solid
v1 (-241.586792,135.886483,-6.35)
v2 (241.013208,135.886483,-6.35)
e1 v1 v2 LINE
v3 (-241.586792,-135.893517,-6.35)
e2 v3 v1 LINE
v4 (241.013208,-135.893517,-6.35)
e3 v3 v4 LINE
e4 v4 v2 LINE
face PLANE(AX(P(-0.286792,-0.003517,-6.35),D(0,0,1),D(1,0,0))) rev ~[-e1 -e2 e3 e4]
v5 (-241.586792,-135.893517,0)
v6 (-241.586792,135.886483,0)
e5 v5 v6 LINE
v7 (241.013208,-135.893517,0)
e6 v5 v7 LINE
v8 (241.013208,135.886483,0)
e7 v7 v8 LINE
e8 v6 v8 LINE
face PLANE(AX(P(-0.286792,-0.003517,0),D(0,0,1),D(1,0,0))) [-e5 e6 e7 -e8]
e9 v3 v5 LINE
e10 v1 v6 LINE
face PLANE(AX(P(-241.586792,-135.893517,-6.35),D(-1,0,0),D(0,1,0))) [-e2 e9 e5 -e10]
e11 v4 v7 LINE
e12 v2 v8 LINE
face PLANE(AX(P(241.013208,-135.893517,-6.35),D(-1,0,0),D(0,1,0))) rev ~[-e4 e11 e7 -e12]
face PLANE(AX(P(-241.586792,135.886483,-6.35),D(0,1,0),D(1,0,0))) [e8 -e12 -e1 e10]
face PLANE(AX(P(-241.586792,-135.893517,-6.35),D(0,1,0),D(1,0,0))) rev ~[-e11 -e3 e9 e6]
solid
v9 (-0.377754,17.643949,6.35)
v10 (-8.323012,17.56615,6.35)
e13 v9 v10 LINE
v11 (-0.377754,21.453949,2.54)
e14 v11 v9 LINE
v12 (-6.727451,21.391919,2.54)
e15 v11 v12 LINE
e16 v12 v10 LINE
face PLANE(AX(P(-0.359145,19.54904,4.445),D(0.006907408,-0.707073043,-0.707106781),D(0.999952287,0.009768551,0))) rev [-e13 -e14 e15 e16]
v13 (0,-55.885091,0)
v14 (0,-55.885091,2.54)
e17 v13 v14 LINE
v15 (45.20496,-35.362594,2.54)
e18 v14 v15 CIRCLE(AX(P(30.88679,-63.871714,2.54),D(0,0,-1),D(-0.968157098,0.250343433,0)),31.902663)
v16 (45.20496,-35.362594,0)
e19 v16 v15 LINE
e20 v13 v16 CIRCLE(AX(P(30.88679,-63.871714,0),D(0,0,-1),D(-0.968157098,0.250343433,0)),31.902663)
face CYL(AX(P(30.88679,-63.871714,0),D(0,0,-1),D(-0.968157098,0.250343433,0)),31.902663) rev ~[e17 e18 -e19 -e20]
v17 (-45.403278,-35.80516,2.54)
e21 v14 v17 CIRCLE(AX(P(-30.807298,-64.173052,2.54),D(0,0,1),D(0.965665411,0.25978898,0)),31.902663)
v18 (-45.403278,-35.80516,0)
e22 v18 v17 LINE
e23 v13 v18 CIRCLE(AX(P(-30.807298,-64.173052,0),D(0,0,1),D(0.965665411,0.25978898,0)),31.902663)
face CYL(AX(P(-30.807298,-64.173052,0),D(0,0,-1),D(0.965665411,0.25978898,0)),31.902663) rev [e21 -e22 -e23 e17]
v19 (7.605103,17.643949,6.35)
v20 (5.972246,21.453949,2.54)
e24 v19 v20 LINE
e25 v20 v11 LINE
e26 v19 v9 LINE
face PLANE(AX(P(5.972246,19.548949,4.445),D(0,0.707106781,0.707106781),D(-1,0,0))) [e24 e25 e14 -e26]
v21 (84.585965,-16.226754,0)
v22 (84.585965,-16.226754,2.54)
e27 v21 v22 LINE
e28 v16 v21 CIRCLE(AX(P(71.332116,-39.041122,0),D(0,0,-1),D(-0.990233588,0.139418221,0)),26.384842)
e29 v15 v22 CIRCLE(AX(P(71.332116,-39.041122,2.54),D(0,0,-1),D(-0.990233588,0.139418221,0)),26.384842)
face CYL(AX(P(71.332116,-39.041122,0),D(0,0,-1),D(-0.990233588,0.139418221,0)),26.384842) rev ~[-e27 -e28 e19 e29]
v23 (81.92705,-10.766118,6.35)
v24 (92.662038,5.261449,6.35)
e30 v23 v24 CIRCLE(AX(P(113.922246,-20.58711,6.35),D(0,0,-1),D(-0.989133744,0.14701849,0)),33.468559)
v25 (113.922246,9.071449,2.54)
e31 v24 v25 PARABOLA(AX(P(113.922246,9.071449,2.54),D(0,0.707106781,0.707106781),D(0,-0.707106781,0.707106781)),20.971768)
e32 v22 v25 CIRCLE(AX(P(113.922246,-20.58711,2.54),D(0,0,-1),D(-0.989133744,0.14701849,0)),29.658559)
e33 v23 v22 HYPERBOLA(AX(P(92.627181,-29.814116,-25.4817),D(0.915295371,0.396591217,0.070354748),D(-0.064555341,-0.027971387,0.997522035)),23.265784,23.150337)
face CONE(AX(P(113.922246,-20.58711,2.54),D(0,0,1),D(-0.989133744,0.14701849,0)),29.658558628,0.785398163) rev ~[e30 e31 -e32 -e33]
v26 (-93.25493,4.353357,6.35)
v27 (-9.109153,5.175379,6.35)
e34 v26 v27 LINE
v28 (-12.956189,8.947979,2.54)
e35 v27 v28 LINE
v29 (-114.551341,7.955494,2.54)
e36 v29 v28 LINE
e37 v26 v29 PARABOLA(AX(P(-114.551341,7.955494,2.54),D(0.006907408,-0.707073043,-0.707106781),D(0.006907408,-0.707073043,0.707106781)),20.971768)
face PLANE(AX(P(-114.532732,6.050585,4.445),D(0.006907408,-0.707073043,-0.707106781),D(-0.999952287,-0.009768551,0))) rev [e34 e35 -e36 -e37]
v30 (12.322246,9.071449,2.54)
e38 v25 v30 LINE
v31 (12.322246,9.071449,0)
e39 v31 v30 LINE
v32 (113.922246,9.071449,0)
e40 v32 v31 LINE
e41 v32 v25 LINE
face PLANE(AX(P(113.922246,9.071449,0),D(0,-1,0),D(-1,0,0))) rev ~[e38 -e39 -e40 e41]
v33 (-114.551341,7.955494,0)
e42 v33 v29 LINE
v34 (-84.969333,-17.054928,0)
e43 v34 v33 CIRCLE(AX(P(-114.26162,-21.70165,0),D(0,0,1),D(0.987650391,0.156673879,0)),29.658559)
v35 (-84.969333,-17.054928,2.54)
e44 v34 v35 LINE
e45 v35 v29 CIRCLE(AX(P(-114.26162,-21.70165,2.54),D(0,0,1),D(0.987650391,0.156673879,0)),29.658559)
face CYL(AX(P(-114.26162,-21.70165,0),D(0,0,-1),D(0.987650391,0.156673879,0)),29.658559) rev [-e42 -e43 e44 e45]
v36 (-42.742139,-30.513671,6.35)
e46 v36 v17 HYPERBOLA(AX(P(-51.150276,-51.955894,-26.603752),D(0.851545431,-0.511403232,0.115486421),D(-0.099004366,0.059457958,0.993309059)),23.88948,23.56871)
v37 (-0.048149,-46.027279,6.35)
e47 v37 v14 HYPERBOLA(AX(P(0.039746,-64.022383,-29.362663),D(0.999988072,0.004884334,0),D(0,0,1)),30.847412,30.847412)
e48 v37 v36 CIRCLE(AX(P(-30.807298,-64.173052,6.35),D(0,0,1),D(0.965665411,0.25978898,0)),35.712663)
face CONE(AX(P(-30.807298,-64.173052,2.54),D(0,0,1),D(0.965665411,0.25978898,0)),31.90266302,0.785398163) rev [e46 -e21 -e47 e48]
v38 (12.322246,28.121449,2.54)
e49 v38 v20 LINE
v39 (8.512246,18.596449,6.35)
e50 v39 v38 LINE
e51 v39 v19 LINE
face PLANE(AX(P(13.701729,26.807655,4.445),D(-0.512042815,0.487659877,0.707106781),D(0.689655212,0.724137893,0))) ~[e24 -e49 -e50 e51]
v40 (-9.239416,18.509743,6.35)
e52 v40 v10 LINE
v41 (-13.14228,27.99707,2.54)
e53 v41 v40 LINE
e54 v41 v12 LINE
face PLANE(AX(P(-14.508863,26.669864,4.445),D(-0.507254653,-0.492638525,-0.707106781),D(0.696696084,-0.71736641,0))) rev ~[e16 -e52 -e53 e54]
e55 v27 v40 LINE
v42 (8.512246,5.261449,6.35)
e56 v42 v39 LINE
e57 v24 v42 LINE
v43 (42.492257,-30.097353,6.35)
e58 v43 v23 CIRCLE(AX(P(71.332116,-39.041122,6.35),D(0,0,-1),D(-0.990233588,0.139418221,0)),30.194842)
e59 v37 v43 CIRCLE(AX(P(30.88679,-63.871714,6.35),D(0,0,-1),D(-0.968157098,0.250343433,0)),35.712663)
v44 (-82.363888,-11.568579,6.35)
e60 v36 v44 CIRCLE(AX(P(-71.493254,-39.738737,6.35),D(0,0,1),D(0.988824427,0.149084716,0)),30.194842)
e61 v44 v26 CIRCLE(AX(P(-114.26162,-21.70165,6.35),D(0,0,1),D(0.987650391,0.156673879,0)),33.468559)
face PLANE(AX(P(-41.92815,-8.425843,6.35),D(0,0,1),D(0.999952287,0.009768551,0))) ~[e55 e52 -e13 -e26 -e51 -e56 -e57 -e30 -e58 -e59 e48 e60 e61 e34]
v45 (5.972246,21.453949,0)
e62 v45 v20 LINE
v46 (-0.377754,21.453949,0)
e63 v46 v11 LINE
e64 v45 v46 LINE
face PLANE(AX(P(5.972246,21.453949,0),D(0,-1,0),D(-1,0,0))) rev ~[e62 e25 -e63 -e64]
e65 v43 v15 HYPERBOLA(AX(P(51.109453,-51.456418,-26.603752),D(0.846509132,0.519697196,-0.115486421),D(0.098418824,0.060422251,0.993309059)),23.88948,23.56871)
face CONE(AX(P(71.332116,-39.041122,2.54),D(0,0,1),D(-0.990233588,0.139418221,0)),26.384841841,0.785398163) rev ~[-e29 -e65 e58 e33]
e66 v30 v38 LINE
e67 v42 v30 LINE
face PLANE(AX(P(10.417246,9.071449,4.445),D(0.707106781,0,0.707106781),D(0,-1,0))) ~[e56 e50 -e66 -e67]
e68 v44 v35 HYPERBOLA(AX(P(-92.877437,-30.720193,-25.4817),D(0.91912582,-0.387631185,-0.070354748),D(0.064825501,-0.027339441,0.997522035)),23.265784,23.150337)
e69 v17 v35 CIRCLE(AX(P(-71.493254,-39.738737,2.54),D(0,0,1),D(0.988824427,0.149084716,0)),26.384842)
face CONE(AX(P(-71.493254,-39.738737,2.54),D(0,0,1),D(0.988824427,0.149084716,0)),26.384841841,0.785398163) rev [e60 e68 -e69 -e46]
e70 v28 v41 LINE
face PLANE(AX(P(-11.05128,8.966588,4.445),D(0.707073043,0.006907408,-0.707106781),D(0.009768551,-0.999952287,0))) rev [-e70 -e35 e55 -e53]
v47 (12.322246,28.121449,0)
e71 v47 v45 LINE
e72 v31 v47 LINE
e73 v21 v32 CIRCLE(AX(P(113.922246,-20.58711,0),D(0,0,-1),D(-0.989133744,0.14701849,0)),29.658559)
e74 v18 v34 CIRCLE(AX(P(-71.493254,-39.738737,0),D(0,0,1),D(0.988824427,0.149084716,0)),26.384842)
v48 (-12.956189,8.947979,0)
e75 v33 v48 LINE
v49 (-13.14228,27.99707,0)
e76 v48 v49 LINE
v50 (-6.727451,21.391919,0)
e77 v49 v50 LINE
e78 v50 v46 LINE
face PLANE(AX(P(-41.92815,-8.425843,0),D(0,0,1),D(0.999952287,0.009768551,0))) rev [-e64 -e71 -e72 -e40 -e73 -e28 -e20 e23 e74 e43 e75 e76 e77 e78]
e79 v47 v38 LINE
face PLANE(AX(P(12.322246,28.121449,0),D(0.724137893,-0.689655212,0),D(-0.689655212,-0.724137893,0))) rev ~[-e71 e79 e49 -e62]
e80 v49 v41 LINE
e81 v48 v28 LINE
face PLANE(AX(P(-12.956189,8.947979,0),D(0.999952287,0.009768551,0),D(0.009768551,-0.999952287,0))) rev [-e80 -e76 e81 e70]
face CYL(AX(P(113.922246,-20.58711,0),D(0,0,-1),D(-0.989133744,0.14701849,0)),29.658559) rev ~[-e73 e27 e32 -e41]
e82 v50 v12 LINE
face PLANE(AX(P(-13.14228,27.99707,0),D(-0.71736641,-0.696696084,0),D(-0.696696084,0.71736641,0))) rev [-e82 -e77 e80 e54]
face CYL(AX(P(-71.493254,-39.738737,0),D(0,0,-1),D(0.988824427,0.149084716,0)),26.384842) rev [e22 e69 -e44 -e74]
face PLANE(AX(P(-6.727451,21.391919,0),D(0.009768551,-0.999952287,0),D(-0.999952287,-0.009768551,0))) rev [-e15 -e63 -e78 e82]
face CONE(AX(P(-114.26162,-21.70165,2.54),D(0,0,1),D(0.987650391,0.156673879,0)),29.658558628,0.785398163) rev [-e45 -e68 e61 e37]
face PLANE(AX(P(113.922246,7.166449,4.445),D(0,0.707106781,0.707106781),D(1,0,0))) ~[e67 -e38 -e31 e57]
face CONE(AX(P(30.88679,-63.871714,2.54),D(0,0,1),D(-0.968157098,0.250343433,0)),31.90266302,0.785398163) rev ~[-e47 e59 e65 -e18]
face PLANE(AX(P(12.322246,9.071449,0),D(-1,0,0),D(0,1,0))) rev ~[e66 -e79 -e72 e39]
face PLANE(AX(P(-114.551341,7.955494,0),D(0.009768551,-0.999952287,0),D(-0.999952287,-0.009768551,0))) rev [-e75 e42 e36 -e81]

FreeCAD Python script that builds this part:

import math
import FreeCAD as App
import Part
import Sketcher

V = App.Vector
Q = App.Units.Quantity


def edges_at(feature, points):
    """Names of the edges that pass closest to the given points."""
    edges = feature.Shape.Edges
    near = lambda p: min(range(len(edges)), key=lambda i: edges[i].distToShape(Part.Vertex(*p))[0])
    return sorted({f"Edge{near(p) + 1}" for p in points})


def add_polygon(sketch, points):
    """Adds a closed chain of lines whose ends are joined by coincident constraints."""
    first, n = sketch.GeometryCount, len(points)
    for a, b in zip(points, points[1:] + points[:1]):
        sketch.addGeometry(Part.LineSegment(App.Vector(*a, 0), App.Vector(*b, 0)), False)
    for i in range(n):
        sketch.addConstraint(Sketcher.Constraint("Coincident", first + i, 2, first + (i + 1) % n, 1))

doc = App.newDocument("Part")
params = doc.addObject("Spreadsheet::Sheet", "Params")
for row, (alias, value) in enumerate([
    ("sketch1_width", "4 in"),
    ("sketch1_width2", "0.25 in"),
    ("sketch1_height", "0.75 in"),
    ("pad1_length", "0.25 in"),
    ("chamfer_size", "0.15 in"),
    ("sketch2_width", "19 in"),
    ("sketch2_height", "10.7 in"),
    ("pad2_length", "0.25 in"),
], start=1):
    params.set(f"A{row}", alias)
    params.set(f"B{row}", "=" + value)
    params.setAlias(f"B{row}", alias)

body = doc.addObject("PartDesign::Body", "Body")

sketch1 = body.newObject("Sketcher::SketchObject", "Sketch")
sketch1.AttachmentSupport = (doc.getObject("XY_Plane"), [""])
sketch1.MapMode = "FlatFace"
sketch1.addGeometry([
    Part.LineSegment(V(6, 21, 0), V(0, 21, 0)),
    Part.LineSegment(V(0, 21, 0), V(0, -56, 0)),
    Part.ArcOfCircle(Part.Circle(V(31, -64, 0), V(0, 0, 1), 32), math.radians(63), math.radians(166)),
    Part.ArcOfCircle(Part.Circle(V(71, -39, 0), V(0, 0, 1), 26), math.radians(60), math.radians(172)),
    Part.ArcOfCircle(Part.Circle(V(114, -21, 0), V(0, 0, 1), 30), math.radians(90), math.radians(172)),
    Part.LineSegment(V(114, 9, 0), V(12, 9, 0)),
    Part.LineSegment(V(12, 9, 0), V(12, 28, 0)),
    Part.LineSegment(V(12, 28, 0), V(6, 21, 0)),
], False)
sketch1.addConstraint([
    Sketcher.Constraint("Coincident", 0, 2, 1, 1),
    Sketcher.Constraint("Coincident", 1, 2, 2, 2),
    Sketcher.Constraint("Coincident", 2, 1, 3, 2),
    Sketcher.Constraint("Coincident", 3, 1, 4, 2),
    Sketcher.Constraint("Tangent", 4, 1, 5, 1),
    Sketcher.Constraint("Coincident", 5, 2, 6, 1),
    Sketcher.Constraint("Coincident", 6, 2, 7, 1),
    Sketcher.Constraint("Coincident", 7, 2, 0, 1),
    Sketcher.Constraint("Horizontal", 0),
    Sketcher.Constraint("Horizontal", 5),
    Sketcher.Constraint("Vertical", 6),
    Sketcher.Constraint("PointOnObject", 1, 2, -2),
    Sketcher.Constraint("DistanceX", 5, 2, 5, 1, Q("4 in")),
    Sketcher.Constraint("DistanceX", 0, 2, 0, 1, Q("0.25 in")),
    Sketcher.Constraint("DistanceY", 6, 1, 6, 2, Q("0.75 in")),
    Sketcher.Constraint("DistanceX", 0, 2, 4, 3, Q("4.5 in")),
    Sketcher.Constraint("Radius", 3, Q("26.384842 mm")),
    Sketcher.Constraint("Radius", 4, Q("29.658559 mm")),
    Sketcher.Constraint("Distance", 7, Q("0.3625 in")),
    Sketcher.Constraint("Radius", 2, Q("31.902663 mm")),
    Sketcher.Constraint("DistanceX", -1, 1, 2, 3, Q("30.88679 mm")),
    Sketcher.Constraint("DistanceY", 3, 3, -1, 1, Q("39.041122 mm")),
    Sketcher.Constraint("DistanceY", 4, 3, -1, 1, Q("20.58711 mm")),
    Sketcher.Constraint("DistanceY", 1, 2, -1, 1, Q("55.885091 mm")),
    Sketcher.Constraint("DistanceX", -1, 1, 2, 1, Q("45.20496 mm")),
    Sketcher.Constraint("DistanceX", 3, 3, 4, 3, Q("42.590129 mm")),
])
sketch1.setExpression("Constraints[12]", "Params.sketch1_width")
sketch1.setExpression("Constraints[13]", "Params.sketch1_width2")
sketch1.setExpression("Constraints[14]", "Params.sketch1_height")
pad1 = body.newObject("PartDesign::Pad", "Pad")
pad1.Profile = sketch1
pad1.setExpression("Length", "Params.pad1_length")
body2 = doc.addObject("PartDesign::Body", "Body001")
doc.recompute()

body2.BaseFeature = body
doc.recompute()

mirroring = doc.addObject("Part::Mirroring", "Mirroring")
mirroring.Source = body
mirroring.Base = V(-0.188877, -17.215571, 3.175)
mirroring.Normal = V(-0.999988072, -0.004884334, 0)
body3 = doc.addObject("PartDesign::Body", "Body002")
body3.BaseFeature = mirroring
boolean = body2.newObject("PartDesign::Boolean", "Boolean")
boolean.Type = "Fuse"
boolean.addObjects([body3])
doc.recompute()

chamfer = body2.newObject("PartDesign::Chamfer", "Chamfer")
chamfer.Base = (boolean, edges_at(boolean, [
    (12.322, 18.596, 6.35),
    (9.147, 24.788, 6.35),
    (2.797, 21.454, 6.35),
    (-3.553, 21.423, 6.35),
    (-9.935, 24.694, 6.35),
    (-13.049, 18.473, 6.35),
    (-63.754, 8.452, 6.35),
    (-95.113, 0.947, 6.35),
    (-60.194, -15.896, 6.35),
    (-17.904, -34.996, 6.35),
    (17.699, -34.822, 6.35),
    (59.801, -15.31, 6.35),
    (94.553, 1.873, 6.35),
    (63.122, 9.071, 6.35),
]))
chamfer.setExpression("Size", "Params.chamfer_size")
body4 = doc.addObject("PartDesign::Body", "Body003")

sketch2 = body4.newObject("Sketcher::SketchObject", "Sketch001")
sketch2.AttachmentSupport = (doc.getObject("XY_Plane003"), [""])
sketch2.MapMode = "FlatFace"
sketch2.AttachmentOffset = App.Placement(V(0, 0, -0.25 * 25.4), App.Rotation())
add_polygon(sketch2, [(-242, 136), (-242, -136), (241, -136), (241, 136)])
sketch2.addConstraint([
    Sketcher.Constraint("Vertical", 0),
    Sketcher.Constraint("Horizontal", 1),
    Sketcher.Constraint("Vertical", 2),
    Sketcher.Constraint("Horizontal", 3),
    Sketcher.Constraint("DistanceX", 1, 1, 1, 2, Q("19 in")),
    Sketcher.Constraint("DistanceY", 0, 2, 0, 1, Q("10.7 in")),
    Sketcher.Constraint("DistanceX", 0, 2, -1, 1, Q("241.586792 mm")),
    Sketcher.Constraint("DistanceY", 0, 2, -1, 1, Q("135.893517 mm")),
])
sketch2.setExpression("Constraints[8]", "Params.sketch2_width")
sketch2.setExpression("Constraints[9]", "Params.sketch2_height")
pad2 = body4.newObject("PartDesign::Pad", "Pad001")
pad2.Profile = sketch2
pad2.setExpression("Length", "Params.pad2_length")
mirroring.Visibility = False

doc.recompute()
